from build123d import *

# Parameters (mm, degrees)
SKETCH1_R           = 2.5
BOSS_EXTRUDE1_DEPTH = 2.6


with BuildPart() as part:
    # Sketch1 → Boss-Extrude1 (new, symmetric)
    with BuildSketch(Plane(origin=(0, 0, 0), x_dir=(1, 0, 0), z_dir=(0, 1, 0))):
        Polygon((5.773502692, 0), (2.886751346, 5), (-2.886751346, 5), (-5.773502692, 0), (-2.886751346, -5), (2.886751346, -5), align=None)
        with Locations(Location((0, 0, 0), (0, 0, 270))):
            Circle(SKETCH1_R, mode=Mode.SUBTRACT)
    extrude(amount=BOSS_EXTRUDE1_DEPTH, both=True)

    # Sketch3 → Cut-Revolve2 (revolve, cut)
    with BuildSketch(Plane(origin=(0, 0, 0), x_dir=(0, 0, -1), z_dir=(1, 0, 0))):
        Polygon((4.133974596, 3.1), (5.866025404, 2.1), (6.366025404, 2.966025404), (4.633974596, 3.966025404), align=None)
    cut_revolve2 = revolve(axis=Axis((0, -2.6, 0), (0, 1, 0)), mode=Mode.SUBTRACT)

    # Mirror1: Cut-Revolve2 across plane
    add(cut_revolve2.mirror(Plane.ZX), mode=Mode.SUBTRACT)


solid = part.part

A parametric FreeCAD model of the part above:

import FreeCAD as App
import Part
import Sketcher
from FreeCAD import Vector
Q = App.Units.Quantity

doc = App.newDocument("Part")
body = doc.addObject("PartDesign::Body", "Body")

sketch1 = body.newObject("Sketcher::SketchObject", "Sketch")
sketch1.AttachmentSupport = (doc.getObject("XZ_Plane"), [""])
sketch1.MapMode = "FlatFace"
sketch1.addGeometry(Part.LineSegment(Vector(5.8, 0, 0), Vector(2.9, -5, 0)), False)
sketch1.addGeometry(Part.LineSegment(Vector(2.9, -5, 0), Vector(-2.9, -5, 0)), False)
sketch1.addGeometry(Part.LineSegment(Vector(-2.9, -5, 0), Vector(-5.8, 0, 0)), False)
sketch1.addGeometry(Part.LineSegment(Vector(-5.8, 0, 0), Vector(-2.9, 5, 0)), False)
sketch1.addGeometry(Part.LineSegment(Vector(-2.9, 5, 0), Vector(2.9, 5, 0)), False)
sketch1.addGeometry(Part.LineSegment(Vector(2.9, 5, 0), Vector(5.8, 0, 0)), False)
sketch1.addGeometry(Part.Circle(Vector(0, 0, 0), Vector(0, 0, 1), 2.5), False)
sketch1.addConstraint(Sketcher.Constraint("Coincident", 0, 2, 1, 1))
sketch1.addConstraint(Sketcher.Constraint("Coincident", 1, 2, 2, 1))
sketch1.addConstraint(Sketcher.Constraint("Coincident", 2, 2, 3, 1))
sketch1.addConstraint(Sketcher.Constraint("Coincident", 3, 2, 4, 1))
sketch1.addConstraint(Sketcher.Constraint("Coincident", 4, 2, 5, 1))
sketch1.addConstraint(Sketcher.Constraint("Coincident", 5, 2, 0, 1))
sketch1.addConstraint(Sketcher.Constraint("Horizontal", 1))
sketch1.addConstraint(Sketcher.Constraint("Horizontal", 4))
sketch1.addConstraint(Sketcher.Constraint("Coincident", 6, 3, -1, 1))
sketch1.addConstraint(Sketcher.Constraint("Symmetric", 0, 2, 3, 2, -1, 1))
sketch1.addConstraint(Sketcher.Constraint("Symmetric", 2, 2, 5, 2, -1, 1))
sketch1.addConstraint(Sketcher.Constraint("PointOnObject", 2, 2, -1))
sketch1.addConstraint(Sketcher.Constraint("Parallel", 2, 5))
sketch1.addConstraint(Sketcher.Constraint("Vertical", 1, 2, 3, 2))
sketch1.addConstraint(Sketcher.Constraint("Diameter", 6, Q("5 mm")))
sketch1.addConstraint(Sketcher.Constraint("Angle", 0, Q("-120 deg")))
sketch1.addConstraint(Sketcher.Constraint("DistanceY", 0, 2, -1, 1, Q("5 mm")))
sketch1.addConstraint(Sketcher.Constraint("DistanceX", 1, 2, 1, 1, Q("5.773503 mm")))
pad1 = body.newObject("PartDesign::Pad", "Pad")
pad1.Profile = sketch1
pad1.Length = 5.2
pad1.Midplane = True

sketch2 = body.newObject("Sketcher::SketchObject", "Sketch001")
sketch2.AttachmentSupport = (doc.getObject("YZ_Plane"), [""])
sketch2.MapMode = "FlatFace"
sketch2.addGeometry(Part.LineSegment(Vector(3.1, -4.1, 0), Vector(2.1, -5.9, 0)), False)
sketch2.addGeometry(Part.LineSegment(Vector(2.1, -5.9, 0), Vector(3, -6.4, 0)), False)
sketch2.addGeometry(Part.LineSegment(Vector(3, -6.4, 0), Vector(4, -4.6, 0)), False)
sketch2.addGeometry(Part.LineSegment(Vector(4, -4.6, 0), Vector(3.1, -4.1, 0)), False)
sketch2.addConstraint(Sketcher.Constraint("Coincident", 0, 2, 1, 1))
sketch2.addConstraint(Sketcher.Constraint("Coincident", 1, 2, 2, 1))
sketch2.addConstraint(Sketcher.Constraint("Coincident", 2, 2, 3, 1))
sketch2.addConstraint(Sketcher.Constraint("Coincident", 3, 2, 0, 1))
sketch2.addConstraint(Sketcher.Constraint("Perpendicular", 0, 1))
sketch2.addConstraint(Sketcher.Constraint("Perpendicular", 1, 2))
sketch2.addConstraint(Sketcher.Constraint("Perpendicular", 2, 3))
sketch2.addConstraint(Sketcher.Constraint("Angle", 0, Q("-120 deg")))
sketch2.addConstraint(Sketcher.Constraint("Distance", 0, Q("2 mm")))
sketch2.addConstraint(Sketcher.Constraint("Distance", 1, Q("1 mm")))
sketch2.addConstraint(Sketcher.Constraint("DistanceX", -1, 1, 0, 2, Q("2.1 mm")))
sketch2.addConstraint(Sketcher.Constraint("DistanceY", 0, 2, -1, 1, Q("5.866025 mm")))
groove = body.newObject("PartDesign::Groove", "Groove")
groove.Profile = sketch2
groove.ReferenceAxis = (sketch2, ["H_Axis"])
groove.Angle = 360
doc.recompute()

mirrored = body.newObject("PartDesign::Mirrored", "Mirrored")
mirrored.Originals = [groove]
mirrored.MirrorPlane = (doc.getObject("XZ_Plane"), [""])
body.Tip = mirrored

doc.recompute()
